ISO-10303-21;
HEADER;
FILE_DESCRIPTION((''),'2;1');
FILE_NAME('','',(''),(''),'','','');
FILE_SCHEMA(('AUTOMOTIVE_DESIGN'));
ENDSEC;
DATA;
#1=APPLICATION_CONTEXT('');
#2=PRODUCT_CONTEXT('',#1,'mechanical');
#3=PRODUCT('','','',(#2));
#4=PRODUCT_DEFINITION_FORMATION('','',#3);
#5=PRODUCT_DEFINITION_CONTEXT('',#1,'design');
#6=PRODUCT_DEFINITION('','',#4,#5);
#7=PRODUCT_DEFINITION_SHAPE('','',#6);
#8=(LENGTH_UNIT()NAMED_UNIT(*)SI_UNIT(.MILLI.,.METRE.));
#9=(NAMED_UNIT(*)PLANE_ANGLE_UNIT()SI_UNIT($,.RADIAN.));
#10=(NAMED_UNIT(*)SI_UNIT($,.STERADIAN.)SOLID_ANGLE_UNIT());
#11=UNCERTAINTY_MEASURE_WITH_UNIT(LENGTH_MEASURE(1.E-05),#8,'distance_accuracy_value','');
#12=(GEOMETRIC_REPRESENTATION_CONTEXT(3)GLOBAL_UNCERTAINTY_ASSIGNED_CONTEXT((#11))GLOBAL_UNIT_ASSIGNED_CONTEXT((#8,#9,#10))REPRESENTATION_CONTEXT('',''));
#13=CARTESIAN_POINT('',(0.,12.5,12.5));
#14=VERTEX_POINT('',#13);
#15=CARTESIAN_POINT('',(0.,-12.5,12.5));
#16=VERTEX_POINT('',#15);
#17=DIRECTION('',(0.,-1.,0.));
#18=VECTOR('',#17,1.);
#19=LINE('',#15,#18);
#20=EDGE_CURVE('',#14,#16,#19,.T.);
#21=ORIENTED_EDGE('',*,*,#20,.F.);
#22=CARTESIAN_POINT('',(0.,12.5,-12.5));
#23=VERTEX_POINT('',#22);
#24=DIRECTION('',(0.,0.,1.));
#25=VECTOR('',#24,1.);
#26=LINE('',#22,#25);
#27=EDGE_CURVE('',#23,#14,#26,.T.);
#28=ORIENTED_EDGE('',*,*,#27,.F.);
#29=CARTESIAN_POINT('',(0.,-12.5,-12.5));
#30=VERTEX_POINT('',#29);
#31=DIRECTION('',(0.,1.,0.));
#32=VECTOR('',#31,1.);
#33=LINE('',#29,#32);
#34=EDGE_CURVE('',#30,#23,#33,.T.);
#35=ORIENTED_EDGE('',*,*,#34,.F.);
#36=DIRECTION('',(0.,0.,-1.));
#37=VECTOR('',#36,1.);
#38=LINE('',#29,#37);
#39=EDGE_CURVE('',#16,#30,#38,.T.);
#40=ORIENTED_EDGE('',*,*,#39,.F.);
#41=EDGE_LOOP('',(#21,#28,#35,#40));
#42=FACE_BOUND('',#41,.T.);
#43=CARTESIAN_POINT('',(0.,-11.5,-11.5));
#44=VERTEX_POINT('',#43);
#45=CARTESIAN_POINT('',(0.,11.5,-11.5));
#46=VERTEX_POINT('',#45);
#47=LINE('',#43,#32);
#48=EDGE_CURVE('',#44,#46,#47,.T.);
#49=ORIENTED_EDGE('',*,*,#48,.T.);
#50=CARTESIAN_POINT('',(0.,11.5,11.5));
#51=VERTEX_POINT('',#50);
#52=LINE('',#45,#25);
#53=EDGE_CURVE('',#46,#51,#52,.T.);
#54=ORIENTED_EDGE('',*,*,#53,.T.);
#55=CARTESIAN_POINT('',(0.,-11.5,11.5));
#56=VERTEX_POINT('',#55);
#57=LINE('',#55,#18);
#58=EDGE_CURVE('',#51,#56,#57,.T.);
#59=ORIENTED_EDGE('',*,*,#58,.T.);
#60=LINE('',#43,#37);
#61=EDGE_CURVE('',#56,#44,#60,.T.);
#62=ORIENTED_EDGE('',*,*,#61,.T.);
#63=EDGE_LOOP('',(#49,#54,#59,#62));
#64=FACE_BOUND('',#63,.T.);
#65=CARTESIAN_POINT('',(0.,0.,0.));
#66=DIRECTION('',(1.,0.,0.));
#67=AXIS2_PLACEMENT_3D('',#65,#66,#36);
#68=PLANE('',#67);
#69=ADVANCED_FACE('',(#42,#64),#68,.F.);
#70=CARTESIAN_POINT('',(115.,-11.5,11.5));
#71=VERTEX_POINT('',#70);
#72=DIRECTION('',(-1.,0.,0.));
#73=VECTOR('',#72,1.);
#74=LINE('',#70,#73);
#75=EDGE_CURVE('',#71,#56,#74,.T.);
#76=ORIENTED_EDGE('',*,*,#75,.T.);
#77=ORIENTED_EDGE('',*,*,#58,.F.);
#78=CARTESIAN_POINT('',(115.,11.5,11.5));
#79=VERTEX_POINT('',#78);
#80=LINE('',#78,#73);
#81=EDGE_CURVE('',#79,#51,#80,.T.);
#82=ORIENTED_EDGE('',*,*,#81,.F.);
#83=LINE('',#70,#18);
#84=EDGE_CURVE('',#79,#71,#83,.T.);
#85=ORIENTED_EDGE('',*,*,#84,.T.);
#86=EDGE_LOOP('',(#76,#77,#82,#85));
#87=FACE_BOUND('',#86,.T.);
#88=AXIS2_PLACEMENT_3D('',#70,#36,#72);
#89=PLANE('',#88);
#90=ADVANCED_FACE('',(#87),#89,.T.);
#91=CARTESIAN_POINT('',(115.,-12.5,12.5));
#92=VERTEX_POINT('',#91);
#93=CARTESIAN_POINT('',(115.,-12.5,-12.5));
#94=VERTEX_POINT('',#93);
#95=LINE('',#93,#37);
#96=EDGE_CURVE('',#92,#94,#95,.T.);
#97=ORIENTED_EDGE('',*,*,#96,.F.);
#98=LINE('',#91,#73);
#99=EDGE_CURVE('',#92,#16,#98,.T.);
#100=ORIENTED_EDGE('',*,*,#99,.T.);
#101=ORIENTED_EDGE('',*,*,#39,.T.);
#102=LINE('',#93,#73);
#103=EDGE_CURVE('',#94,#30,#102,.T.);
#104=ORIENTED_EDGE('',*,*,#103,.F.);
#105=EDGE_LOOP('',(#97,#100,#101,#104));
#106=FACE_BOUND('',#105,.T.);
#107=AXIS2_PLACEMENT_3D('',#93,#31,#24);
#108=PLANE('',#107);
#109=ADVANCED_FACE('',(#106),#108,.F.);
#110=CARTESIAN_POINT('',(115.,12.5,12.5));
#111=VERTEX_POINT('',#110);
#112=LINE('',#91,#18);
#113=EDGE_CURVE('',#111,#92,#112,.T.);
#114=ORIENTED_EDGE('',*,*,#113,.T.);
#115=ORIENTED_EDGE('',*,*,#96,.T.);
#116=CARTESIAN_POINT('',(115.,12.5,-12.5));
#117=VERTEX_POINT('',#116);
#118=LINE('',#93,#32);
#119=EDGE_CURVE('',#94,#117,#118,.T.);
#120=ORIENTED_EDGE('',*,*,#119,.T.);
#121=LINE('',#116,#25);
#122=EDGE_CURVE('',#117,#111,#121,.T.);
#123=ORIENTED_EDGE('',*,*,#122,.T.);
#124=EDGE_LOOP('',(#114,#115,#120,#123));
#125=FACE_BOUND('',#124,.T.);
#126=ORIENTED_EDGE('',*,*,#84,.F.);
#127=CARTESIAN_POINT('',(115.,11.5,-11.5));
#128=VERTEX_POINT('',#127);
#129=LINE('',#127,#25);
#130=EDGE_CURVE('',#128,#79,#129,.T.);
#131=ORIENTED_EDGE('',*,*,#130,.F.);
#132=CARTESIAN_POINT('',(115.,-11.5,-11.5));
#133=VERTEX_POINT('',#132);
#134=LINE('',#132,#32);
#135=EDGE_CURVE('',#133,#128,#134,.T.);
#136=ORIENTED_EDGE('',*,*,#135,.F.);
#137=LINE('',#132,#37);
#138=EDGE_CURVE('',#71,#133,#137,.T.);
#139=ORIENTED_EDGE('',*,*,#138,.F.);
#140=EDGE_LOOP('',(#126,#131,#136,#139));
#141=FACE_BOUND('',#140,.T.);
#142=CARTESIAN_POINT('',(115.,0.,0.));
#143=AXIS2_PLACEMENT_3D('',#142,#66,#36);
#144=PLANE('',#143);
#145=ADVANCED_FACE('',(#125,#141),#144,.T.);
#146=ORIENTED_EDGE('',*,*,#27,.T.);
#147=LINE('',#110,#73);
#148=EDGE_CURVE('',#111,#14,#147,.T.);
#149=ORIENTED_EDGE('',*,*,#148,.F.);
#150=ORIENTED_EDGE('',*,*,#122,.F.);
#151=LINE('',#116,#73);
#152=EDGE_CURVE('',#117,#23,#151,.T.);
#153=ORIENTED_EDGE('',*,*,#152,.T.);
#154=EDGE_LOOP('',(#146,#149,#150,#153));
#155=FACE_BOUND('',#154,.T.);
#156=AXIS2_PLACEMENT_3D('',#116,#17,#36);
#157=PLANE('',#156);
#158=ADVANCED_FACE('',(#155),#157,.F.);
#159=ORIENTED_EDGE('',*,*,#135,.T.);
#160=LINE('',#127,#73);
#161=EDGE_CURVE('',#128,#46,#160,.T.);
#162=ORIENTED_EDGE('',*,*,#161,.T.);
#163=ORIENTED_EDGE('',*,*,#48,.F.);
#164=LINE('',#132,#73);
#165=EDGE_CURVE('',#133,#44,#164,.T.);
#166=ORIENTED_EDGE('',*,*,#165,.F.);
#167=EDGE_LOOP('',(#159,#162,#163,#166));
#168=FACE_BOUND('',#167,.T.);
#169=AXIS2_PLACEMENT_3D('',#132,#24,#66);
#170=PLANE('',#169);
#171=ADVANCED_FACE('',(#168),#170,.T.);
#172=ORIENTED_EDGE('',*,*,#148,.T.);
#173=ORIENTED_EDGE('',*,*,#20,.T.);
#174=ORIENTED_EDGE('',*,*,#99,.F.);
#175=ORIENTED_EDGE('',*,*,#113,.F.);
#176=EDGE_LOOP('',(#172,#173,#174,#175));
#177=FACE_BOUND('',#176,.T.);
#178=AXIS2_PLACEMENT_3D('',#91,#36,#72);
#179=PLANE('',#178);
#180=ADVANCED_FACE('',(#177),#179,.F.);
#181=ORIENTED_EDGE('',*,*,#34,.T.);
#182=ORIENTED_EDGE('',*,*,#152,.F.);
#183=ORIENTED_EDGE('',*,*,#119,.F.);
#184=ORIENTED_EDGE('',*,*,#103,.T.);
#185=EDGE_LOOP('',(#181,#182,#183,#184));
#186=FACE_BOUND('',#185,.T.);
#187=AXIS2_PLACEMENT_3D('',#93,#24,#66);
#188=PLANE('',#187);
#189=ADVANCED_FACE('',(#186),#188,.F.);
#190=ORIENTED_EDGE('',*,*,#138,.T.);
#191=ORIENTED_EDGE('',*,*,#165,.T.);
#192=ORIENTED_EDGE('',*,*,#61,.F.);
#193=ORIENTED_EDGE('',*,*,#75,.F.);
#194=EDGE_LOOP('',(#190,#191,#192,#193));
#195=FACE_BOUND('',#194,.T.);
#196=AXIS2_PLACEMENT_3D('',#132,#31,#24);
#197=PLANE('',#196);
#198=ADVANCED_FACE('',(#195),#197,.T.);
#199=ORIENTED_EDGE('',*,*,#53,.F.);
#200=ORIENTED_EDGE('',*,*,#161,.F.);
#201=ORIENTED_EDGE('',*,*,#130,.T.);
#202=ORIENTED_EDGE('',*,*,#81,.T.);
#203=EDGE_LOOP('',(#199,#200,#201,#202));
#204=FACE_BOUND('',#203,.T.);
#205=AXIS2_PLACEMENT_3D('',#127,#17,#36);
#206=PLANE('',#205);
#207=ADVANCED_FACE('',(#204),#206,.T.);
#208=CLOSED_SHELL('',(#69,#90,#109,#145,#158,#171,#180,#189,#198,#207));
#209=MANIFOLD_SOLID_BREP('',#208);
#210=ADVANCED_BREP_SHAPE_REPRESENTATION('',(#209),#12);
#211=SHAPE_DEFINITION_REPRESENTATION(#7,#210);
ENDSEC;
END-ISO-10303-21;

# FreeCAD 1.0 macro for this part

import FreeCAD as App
import Part
import Sketcher

V = App.Vector

doc = App.newDocument("Part")
body = doc.addObject("PartDesign::Body", "Body")

# Sketch on YZ plane
sketch1 = body.newObject("Sketcher::SketchObject", "Sketch")
sketch1.AttachmentSupport = (doc.getObject("YZ_Plane"), [""])
sketch1.MapMode = "FlatFace"
sketch1.addGeometry(Part.LineSegment(V(12, 12, 0), V(-12, 12, 0)), False)
sketch1.addGeometry(Part.LineSegment(V(-12, 12, 0), V(-12, -12, 0)), False)
sketch1.addGeometry(Part.LineSegment(V(-12, -12, 0), V(12, -12, 0)), False)
sketch1.addGeometry(Part.LineSegment(V(12, -12, 0), V(12, 12, 0)), False)
sketch1.addGeometry(Part.LineSegment(V(-12, -12, 0), V(-12, 12, 0)), False)
sketch1.addGeometry(Part.LineSegment(V(-12, 12, 0), V(12, 12, 0)), False)
sketch1.addGeometry(Part.LineSegment(V(12, 12, 0), V(12, -12, 0)), False)
sketch1.addGeometry(Part.LineSegment(V(12, -12, 0), V(-12, -12, 0)), False)
sketch1.addConstraint(Sketcher.Constraint("Coincident", 0, 2, 1, 1))
sketch1.addConstraint(Sketcher.Constraint("Coincident", 1, 2, 2, 1))
sketch1.addConstraint(Sketcher.Constraint("Coincident", 2, 2, 3, 1))
sketch1.addConstraint(Sketcher.Constraint("Coincident", 3, 2, 0, 1))
sketch1.addConstraint(Sketcher.Constraint("Coincident", 4, 2, 5, 1))
sketch1.addConstraint(Sketcher.Constraint("Coincident", 5, 2, 6, 1))
sketch1.addConstraint(Sketcher.Constraint("Coincident", 6, 2, 7, 1))
sketch1.addConstraint(Sketcher.Constraint("Coincident", 7, 2, 4, 1))
sketch1.addConstraint(Sketcher.Constraint("Horizontal", 0))
sketch1.addConstraint(Sketcher.Constraint("Vertical", 1))
sketch1.addConstraint(Sketcher.Constraint("Horizontal", 2))
sketch1.addConstraint(Sketcher.Constraint("Vertical", 3))
sketch1.addConstraint(Sketcher.Constraint("Vertical", 4))
sketch1.addConstraint(Sketcher.Constraint("Horizontal", 5))
sketch1.addConstraint(Sketcher.Constraint("Vertical", 6))
sketch1.addConstraint(Sketcher.Constraint("Horizontal", 7))
sketch1.addConstraint(Sketcher.Constraint("Symmetric", 0, 2, 2, 2, -1, 1))
sketch1.addConstraint(Sketcher.Constraint("Symmetric", 4, 2, 6, 2, -1, 1))
sketch1.addConstraint(Sketcher.Constraint("Equal", 2, 1))
sketch1.addConstraint(Sketcher.Constraint("Equal", 7, 4))
sketch1.addConstraint(Sketcher.Constraint("DistanceX", 0, 2, 0, 1, 25.0))
sketch1.addConstraint(Sketcher.Constraint("DistanceX", 5, 1, 5, 2, 23.0))
pad1 = body.newObject("PartDesign::Pad", "Pad")
pad1.Profile = sketch1
pad1.Length = 115

doc.recompute()
